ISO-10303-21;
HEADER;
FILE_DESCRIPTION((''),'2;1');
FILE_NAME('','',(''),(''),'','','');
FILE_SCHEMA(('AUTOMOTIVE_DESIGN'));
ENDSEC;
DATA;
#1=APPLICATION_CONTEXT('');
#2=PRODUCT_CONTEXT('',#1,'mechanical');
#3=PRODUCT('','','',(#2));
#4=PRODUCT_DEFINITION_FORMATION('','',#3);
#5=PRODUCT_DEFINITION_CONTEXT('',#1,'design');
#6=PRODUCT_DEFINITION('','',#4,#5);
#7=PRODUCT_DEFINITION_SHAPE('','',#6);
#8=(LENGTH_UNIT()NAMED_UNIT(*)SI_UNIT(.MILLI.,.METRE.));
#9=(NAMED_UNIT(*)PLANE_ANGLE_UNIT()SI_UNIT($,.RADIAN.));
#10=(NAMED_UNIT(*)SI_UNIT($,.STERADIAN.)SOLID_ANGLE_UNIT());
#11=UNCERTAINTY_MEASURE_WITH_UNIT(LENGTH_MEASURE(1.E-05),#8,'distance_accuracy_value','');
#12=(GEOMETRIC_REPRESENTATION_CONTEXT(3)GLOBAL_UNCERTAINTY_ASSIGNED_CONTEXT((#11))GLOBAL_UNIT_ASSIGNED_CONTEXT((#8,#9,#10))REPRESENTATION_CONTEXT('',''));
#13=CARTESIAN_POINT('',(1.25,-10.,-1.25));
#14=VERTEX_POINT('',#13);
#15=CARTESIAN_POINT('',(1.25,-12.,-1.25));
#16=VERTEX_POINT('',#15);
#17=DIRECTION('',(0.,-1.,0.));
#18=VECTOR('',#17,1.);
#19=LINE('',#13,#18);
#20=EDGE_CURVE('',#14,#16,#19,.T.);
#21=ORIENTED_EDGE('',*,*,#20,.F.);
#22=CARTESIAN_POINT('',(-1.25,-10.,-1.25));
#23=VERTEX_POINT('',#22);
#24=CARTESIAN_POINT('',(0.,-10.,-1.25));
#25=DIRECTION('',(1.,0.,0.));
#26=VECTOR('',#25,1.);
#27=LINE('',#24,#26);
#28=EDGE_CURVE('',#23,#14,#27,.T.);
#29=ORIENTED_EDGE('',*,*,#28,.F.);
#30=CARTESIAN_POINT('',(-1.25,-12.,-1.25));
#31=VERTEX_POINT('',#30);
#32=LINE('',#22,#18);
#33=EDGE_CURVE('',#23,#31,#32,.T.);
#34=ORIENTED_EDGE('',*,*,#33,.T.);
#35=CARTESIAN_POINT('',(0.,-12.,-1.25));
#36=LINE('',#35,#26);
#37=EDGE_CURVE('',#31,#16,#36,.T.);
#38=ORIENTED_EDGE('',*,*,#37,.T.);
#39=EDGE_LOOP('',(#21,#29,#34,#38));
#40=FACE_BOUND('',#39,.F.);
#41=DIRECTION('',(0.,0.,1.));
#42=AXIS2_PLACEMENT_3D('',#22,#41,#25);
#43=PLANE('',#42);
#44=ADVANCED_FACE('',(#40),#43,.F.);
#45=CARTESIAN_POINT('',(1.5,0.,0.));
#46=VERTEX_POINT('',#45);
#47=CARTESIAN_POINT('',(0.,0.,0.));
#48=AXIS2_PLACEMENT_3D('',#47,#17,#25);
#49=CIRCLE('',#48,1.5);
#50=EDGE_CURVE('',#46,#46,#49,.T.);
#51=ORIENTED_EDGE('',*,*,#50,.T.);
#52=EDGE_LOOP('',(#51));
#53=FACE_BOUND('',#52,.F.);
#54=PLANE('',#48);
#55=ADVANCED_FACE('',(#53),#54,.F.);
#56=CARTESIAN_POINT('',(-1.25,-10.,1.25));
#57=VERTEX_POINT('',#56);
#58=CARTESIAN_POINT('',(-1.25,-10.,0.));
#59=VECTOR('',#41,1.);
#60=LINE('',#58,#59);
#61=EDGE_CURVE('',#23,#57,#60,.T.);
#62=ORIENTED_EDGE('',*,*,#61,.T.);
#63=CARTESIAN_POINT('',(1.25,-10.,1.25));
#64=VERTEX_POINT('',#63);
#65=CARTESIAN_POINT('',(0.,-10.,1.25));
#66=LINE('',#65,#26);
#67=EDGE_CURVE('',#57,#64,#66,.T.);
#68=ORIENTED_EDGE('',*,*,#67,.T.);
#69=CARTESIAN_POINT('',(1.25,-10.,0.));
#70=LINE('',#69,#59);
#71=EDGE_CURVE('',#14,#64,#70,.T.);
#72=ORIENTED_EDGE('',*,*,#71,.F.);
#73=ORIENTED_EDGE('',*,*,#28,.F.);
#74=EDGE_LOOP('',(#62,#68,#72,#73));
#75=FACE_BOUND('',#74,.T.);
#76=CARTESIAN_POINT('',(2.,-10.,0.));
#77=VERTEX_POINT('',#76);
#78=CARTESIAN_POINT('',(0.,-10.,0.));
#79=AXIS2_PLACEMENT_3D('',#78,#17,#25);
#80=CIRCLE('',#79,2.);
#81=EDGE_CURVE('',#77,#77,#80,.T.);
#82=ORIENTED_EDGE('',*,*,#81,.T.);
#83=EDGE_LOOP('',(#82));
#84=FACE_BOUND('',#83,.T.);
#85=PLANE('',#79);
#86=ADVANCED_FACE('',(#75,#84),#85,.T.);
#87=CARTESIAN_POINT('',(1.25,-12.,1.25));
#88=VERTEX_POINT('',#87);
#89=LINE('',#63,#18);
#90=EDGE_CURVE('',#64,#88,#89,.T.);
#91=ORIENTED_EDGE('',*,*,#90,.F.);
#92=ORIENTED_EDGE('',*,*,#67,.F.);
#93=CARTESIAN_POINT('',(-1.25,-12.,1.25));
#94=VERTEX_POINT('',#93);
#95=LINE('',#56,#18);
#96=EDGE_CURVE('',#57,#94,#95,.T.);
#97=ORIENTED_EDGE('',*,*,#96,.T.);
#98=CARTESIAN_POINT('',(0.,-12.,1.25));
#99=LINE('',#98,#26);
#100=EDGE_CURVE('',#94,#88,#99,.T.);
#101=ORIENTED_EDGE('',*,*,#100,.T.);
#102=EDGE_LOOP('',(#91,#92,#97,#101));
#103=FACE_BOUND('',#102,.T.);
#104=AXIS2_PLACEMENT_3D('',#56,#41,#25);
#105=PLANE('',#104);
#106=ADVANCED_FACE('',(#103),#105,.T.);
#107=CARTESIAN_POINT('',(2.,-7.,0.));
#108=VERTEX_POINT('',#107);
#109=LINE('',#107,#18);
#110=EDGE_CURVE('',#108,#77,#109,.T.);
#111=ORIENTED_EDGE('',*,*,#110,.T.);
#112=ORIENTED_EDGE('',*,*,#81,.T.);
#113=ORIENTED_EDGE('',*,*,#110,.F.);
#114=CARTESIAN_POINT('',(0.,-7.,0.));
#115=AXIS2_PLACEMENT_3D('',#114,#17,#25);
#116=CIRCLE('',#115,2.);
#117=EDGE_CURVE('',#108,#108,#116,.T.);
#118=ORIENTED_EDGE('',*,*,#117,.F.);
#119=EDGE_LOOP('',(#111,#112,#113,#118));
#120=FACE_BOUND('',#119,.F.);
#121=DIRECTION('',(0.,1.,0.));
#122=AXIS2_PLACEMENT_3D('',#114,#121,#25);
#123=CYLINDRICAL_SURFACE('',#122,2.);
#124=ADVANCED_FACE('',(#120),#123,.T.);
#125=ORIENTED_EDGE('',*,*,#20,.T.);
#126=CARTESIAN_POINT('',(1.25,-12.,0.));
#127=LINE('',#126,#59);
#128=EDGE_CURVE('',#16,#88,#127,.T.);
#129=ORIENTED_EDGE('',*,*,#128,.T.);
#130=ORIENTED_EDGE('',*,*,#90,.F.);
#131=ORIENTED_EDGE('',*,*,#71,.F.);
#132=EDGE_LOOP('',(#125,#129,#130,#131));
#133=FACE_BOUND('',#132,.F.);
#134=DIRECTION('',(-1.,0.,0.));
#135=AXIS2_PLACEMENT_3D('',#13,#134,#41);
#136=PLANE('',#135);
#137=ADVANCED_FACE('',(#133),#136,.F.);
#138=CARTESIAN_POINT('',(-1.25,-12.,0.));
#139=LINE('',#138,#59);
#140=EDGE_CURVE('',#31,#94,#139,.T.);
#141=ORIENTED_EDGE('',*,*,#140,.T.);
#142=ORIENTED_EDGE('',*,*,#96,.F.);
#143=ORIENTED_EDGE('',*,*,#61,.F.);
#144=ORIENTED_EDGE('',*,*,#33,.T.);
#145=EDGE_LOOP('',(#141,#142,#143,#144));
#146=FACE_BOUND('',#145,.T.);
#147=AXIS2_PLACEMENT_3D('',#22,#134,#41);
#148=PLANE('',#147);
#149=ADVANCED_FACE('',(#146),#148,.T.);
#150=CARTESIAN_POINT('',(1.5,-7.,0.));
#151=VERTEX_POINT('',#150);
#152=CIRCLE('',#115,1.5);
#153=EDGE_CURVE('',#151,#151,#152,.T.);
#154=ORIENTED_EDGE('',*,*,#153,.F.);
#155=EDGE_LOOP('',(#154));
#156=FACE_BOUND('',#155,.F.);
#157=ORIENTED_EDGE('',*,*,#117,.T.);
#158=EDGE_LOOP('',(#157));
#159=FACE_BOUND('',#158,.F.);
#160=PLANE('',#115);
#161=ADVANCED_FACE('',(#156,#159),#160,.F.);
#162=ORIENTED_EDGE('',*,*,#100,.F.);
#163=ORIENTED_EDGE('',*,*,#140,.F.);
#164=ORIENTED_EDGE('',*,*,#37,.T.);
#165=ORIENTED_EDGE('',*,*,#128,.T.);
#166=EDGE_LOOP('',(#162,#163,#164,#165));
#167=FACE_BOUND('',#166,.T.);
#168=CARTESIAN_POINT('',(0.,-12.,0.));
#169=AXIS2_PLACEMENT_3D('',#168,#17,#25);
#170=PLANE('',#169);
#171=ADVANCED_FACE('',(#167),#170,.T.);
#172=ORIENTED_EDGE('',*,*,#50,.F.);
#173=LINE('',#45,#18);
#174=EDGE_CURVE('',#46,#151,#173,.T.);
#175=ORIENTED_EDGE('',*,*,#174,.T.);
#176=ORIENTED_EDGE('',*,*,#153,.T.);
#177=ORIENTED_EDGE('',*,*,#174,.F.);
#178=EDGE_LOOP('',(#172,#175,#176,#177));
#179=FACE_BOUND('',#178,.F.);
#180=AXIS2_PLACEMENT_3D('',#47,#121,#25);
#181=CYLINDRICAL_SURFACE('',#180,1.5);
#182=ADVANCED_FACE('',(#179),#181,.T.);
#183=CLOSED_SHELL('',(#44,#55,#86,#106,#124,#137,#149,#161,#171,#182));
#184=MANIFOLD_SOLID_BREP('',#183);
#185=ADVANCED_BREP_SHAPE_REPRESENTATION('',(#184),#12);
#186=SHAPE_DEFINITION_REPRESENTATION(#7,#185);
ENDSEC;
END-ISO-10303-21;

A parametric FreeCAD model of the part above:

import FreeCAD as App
import Part
import Sketcher
Q = App.Units.Quantity

doc = App.newDocument("Part")
body = doc.addObject("PartDesign::Body", "Body")

sketch1 = body.newObject("Sketcher::SketchObject", "Sketch")
sketch1.AttachmentSupport = (doc.getObject("XZ_Plane"), [""])
sketch1.MapMode = "FlatFace"
sketch1.addGeometry(Part.Circle(App.Vector(0, 0, 0), App.Vector(0, 0, 1), 1.5), False)
sketch1.addConstraint(Sketcher.Constraint("Coincident", 0, 3, -1, 1))
sketch1.addConstraint(Sketcher.Constraint("Diameter", 0, Q("3 mm")))
pad1 = body.newObject("PartDesign::Pad", "Pad")
pad1.Profile = sketch1
pad1.Length = 7

sketch2 = body.newObject("Sketcher::SketchObject", "Sketch001")
sketch2.AttachmentSupport = (doc.getObject("XZ_Plane"), [""])
sketch2.MapMode = "FlatFace"
sketch2.AttachmentOffset = App.Placement(App.Vector(0, 0, 7), App.Rotation())
sketch2.addGeometry(Part.Circle(App.Vector(0, 0, 0), App.Vector(0, 0, 1), 2), False)
sketch2.addConstraint(Sketcher.Constraint("Coincident", 0, 3, -1, 1))
sketch2.addConstraint(Sketcher.Constraint("Diameter", 0, Q("4 mm")))
pad2 = body.newObject("PartDesign::Pad", "Pad001")
pad2.Profile = sketch2
pad2.Length = 3

sketch3 = body.newObject("Sketcher::SketchObject", "Sketch002")
sketch3.AttachmentSupport = (doc.getObject("XZ_Plane"), [""])
sketch3.MapMode = "FlatFace"
sketch3.AttachmentOffset = App.Placement(App.Vector(0, 0, 10), App.Rotation())
sketch3.addGeometry(Part.LineSegment(App.Vector(-1.2, 1.2, 0), App.Vector(-1.2, -1.2, 0)), False)
sketch3.addGeometry(Part.LineSegment(App.Vector(-1.2, -1.2, 0), App.Vector(1.2, -1.2, 0)), False)
sketch3.addGeometry(Part.LineSegment(App.Vector(1.2, -1.2, 0), App.Vector(1.2, 1.2, 0)), False)
sketch3.addGeometry(Part.LineSegment(App.Vector(1.2, 1.2, 0), App.Vector(-1.2, 1.2, 0)), False)
sketch3.addConstraint(Sketcher.Constraint("Coincident", 0, 2, 1, 1))
sketch3.addConstraint(Sketcher.Constraint("Coincident", 1, 2, 2, 1))
sketch3.addConstraint(Sketcher.Constraint("Coincident", 2, 2, 3, 1))
sketch3.addConstraint(Sketcher.Constraint("Coincident", 3, 2, 0, 1))
sketch3.addConstraint(Sketcher.Constraint("Vertical", 0))
sketch3.addConstraint(Sketcher.Constraint("Horizontal", 1))
sketch3.addConstraint(Sketcher.Constraint("Vertical", 2))
sketch3.addConstraint(Sketcher.Constraint("Horizontal", 3))
sketch3.addConstraint(Sketcher.Constraint("Symmetric", 0, 2, 2, 2, -1, 1))
sketch3.addConstraint(Sketcher.Constraint("Equal", 3, 0))
sketch3.addConstraint(Sketcher.Constraint("DistanceX", 1, 1, 1, 2, Q("2.5 mm")))
pad3 = body.newObject("PartDesign::Pad", "Pad002")
pad3.Profile = sketch3
pad3.Length = 2

doc.recompute()
